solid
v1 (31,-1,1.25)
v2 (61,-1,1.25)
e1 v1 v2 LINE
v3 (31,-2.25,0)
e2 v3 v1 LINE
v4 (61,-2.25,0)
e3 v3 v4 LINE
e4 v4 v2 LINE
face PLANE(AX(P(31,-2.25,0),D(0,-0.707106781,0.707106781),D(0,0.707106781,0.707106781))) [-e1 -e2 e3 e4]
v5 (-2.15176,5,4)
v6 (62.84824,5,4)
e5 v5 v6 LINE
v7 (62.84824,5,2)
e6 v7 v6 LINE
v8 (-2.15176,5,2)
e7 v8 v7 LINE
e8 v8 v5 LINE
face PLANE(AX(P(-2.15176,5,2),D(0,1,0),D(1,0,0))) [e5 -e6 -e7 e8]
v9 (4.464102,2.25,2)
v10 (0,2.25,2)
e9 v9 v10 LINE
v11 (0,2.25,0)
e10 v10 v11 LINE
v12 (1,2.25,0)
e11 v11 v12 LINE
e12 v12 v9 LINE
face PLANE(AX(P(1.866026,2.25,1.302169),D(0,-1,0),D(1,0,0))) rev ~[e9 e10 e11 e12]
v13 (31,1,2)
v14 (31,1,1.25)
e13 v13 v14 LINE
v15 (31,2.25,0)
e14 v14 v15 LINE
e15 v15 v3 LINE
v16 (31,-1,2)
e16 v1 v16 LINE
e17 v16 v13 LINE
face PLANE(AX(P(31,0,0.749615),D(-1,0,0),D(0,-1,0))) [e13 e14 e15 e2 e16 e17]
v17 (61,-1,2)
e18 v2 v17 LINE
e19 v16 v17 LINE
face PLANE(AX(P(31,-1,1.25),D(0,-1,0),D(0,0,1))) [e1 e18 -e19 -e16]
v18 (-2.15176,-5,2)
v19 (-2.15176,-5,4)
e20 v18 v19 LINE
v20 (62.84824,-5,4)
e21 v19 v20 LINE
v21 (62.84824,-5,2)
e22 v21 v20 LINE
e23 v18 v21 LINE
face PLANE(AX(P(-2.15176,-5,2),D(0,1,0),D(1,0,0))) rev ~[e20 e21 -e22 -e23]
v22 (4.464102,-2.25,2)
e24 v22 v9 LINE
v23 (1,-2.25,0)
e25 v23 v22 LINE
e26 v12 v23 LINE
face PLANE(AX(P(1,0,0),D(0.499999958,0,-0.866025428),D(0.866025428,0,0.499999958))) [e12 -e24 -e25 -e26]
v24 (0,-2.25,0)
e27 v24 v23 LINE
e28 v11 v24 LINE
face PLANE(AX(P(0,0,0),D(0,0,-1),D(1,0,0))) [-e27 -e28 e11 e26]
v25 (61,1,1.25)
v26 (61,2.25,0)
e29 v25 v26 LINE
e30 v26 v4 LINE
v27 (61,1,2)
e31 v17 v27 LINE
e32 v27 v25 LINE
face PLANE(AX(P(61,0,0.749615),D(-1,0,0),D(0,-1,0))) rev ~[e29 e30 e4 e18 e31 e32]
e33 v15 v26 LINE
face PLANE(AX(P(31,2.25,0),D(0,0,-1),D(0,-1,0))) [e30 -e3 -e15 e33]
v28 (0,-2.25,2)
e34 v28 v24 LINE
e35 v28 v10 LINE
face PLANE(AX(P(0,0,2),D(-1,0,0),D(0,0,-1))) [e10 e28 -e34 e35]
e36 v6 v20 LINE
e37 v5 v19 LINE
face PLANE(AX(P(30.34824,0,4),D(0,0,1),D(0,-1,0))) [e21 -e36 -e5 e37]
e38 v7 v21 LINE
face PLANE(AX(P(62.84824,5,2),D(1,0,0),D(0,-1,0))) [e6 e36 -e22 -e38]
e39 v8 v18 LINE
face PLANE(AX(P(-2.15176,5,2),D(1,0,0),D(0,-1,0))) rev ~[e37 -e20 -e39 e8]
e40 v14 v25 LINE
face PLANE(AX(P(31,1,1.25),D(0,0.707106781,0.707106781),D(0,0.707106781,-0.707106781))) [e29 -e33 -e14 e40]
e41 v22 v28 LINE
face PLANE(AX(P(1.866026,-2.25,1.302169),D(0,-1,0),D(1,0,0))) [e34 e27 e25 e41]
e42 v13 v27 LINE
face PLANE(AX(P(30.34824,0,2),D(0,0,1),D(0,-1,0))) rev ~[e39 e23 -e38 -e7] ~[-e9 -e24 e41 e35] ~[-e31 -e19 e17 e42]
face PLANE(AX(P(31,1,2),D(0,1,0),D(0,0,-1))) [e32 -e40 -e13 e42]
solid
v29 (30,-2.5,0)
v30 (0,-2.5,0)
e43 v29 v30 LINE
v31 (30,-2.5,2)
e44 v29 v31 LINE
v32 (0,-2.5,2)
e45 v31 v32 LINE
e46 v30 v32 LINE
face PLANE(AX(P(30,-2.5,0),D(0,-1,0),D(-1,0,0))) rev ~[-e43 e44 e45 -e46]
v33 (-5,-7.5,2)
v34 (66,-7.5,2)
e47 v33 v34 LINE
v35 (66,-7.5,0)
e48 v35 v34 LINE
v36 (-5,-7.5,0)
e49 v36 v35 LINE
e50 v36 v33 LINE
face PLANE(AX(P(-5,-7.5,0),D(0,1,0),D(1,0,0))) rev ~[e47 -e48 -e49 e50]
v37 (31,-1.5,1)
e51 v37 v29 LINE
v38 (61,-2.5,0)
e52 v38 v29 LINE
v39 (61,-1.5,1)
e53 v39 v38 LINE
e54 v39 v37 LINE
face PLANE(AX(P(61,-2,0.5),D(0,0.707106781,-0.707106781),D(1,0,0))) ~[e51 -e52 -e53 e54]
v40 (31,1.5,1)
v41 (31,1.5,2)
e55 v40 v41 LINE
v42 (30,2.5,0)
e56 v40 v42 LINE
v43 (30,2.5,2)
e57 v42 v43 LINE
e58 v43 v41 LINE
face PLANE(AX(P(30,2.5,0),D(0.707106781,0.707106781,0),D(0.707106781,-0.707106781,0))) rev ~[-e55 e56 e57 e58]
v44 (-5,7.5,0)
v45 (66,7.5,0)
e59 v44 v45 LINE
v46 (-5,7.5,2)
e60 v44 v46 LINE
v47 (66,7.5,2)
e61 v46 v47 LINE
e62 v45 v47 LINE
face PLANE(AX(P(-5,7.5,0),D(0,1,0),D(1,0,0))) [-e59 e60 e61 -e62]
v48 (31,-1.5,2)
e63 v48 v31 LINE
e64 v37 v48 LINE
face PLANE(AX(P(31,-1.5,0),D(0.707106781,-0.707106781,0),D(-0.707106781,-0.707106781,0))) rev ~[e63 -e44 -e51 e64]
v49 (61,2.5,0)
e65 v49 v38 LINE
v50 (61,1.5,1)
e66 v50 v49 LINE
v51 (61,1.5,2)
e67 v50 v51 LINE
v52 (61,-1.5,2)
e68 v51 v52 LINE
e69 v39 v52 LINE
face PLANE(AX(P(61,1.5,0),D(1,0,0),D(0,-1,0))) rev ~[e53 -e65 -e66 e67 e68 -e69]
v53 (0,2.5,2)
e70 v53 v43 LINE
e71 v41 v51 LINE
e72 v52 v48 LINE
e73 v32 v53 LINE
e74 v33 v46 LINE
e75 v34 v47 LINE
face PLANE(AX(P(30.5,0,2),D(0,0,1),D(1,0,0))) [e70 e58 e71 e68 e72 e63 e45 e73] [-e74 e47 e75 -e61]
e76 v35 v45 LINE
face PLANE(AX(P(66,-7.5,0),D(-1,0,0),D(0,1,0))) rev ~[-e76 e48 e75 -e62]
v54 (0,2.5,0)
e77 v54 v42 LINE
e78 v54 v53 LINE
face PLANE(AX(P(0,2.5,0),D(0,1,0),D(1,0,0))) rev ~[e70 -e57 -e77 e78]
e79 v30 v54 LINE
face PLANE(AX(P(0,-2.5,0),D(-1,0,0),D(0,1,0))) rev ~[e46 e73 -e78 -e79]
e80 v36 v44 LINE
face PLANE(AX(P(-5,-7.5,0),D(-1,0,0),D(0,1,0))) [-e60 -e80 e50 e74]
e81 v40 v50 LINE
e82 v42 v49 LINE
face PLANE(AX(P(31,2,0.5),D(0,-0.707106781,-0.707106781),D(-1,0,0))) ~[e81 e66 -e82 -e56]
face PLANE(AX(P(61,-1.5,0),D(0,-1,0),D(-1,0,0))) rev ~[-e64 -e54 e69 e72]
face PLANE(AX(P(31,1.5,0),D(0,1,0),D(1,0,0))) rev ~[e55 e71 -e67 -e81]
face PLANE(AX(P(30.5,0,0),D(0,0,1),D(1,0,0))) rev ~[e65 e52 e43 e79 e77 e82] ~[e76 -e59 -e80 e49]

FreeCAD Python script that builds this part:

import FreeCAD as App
import Part
import Sketcher

V = App.Vector
Q = App.Units.Quantity


def edges_at(feature, points):
    """Names of the edges that pass closest to the given points."""
    edges = feature.Shape.Edges
    near = lambda p: min(range(len(edges)), key=lambda i: edges[i].distToShape(Part.Vertex(*p))[0])
    return sorted({f"Edge{near(p) + 1}" for p in points})

doc = App.newDocument("Part")
body = doc.addObject("PartDesign::Body", "Body")

# Sketch on XY plane
sketch1 = body.newObject("Sketcher::SketchObject", "Sketch")
sketch1.AttachmentSupport = (doc.getObject("XY_Plane"), [""])
sketch1.MapMode = "FlatFace"
sketch1.addGeometry([
    Part.LineSegment(V(-5, 7.5, 0), V(-5, -7.5, 0)),  # 0
    Part.LineSegment(V(-5, -7.5, 0), V(66, -7.5, 0)),  # 1
    Part.LineSegment(V(66, -7.5, 0), V(66, 7.5, 0)),  # 2
    Part.LineSegment(V(66, 7.5, 0), V(-5, 7.5, 0)),  # 3
    Part.LineSegment(V(0, -2.5, 0), V(0, 2.5, 0)),  # 4
    Part.LineSegment(V(0, 2.5, 0), V(30, 2.5, 0)),  # 5
    Part.LineSegment(V(30, 2.5, 0), V(31, 1.5, 0)),  # 6
    Part.LineSegment(V(31, 1.5, 0), V(61, 1.5, 0)),  # 7
    Part.LineSegment(V(61, 1.5, 0), V(61, -1.5, 0)),  # 8
    Part.LineSegment(V(61, -1.5, 0), V(31, -1.5, 0)),  # 9
    Part.LineSegment(V(31, -1.5, 0), V(30, -2.5, 0)),  # 10
    Part.LineSegment(V(30, -2.5, 0), V(0, -2.5, 0)),  # 11
], False)
sketch1.addConstraint([
    Sketcher.Constraint("Coincident", 0, 2, 1, 1),
    Sketcher.Constraint("Coincident", 1, 2, 2, 1),
    Sketcher.Constraint("Coincident", 2, 2, 3, 1),
    Sketcher.Constraint("Coincident", 3, 2, 0, 1),
    Sketcher.Constraint("Coincident", 4, 2, 5, 1),
    Sketcher.Constraint("Coincident", 5, 2, 6, 1),
    Sketcher.Constraint("Coincident", 6, 2, 7, 1),
    Sketcher.Constraint("Coincident", 7, 2, 8, 1),
    Sketcher.Constraint("Coincident", 8, 2, 9, 1),
    Sketcher.Constraint("Coincident", 9, 2, 10, 1),
    Sketcher.Constraint("Coincident", 10, 2, 11, 1),
    Sketcher.Constraint("Coincident", 11, 2, 4, 1),
    Sketcher.Constraint("Vertical", 0),
    Sketcher.Constraint("Horizontal", 1),
    Sketcher.Constraint("Vertical", 2),
    Sketcher.Constraint("Horizontal", 3),
    Sketcher.Constraint("Vertical", 4),
    Sketcher.Constraint("Horizontal", 5),
    Sketcher.Constraint("Horizontal", 7),
    Sketcher.Constraint("Vertical", 8),
    Sketcher.Constraint("Horizontal", 9),
    Sketcher.Constraint("Horizontal", 11),
    Sketcher.Constraint("Symmetric", 4, 2, 11, 2, -1, 1),
    Sketcher.Constraint("Symmetric", 6, 2, 9, 2, -1),
    Sketcher.Constraint("Perpendicular", 6, 10),
    Sketcher.Constraint("Vertical", 5, 2, 10, 2),
    Sketcher.Constraint("Equal", 5, 7),
    Sketcher.Constraint("DistanceX", 1, 1, 1, 2, Q("71 mm")),
    Sketcher.Constraint("DistanceX", 5, 1, 5, 2, Q("30 mm")),
    Sketcher.Constraint("DistanceY", 0, 2, 0, 1, Q("15 mm")),
    Sketcher.Constraint("DistanceY", 4, 1, 4, 2, Q("5 mm")),
    Sketcher.Constraint("DistanceY", 8, 2, 8, 1, Q("3 mm")),
    Sketcher.Constraint("DistanceX", 0, 2, -1, 1, Q("5 mm")),
    Sketcher.Constraint("DistanceY", 4, 2, 3, 2, Q("5 mm")),
])
pad1 = body.newObject("PartDesign::Pad", "Pad")
pad1.Profile = sketch1
pad1.Length = 2
doc.recompute()

chamfer = body.newObject("PartDesign::Chamfer", "Chamfer")
chamfer.Base = (pad1, edges_at(pad1, [(46, -1.5, 0), (46, 1.5, 0)]))
chamfer.Size = 1
body2 = doc.addObject("PartDesign::Body", "Body001")

# Sketch on YZ plane
sketch2 = body2.newObject("Sketcher::SketchObject", "Sketch001")
sketch2.AttachmentSupport = (doc.getObject("YZ_Plane001"), [""])
sketch2.MapMode = "FlatFace"
sketch2.AttachmentOffset = App.Placement(V(0, 0, 31), App.Rotation())
sketch2.addGeometry([
    Part.LineSegment(V(1, 2, 0), V(-1, 2, 0)),  # 0
    Part.LineSegment(V(-1, 2, 0), V(-1, 1.2, 0)),  # 1
    Part.LineSegment(V(-1, 1.2, 0), V(-2.2, 0, 0)),  # 2
    Part.LineSegment(V(-2.2, 0, 0), V(2.2, 0, 0)),  # 3
    Part.LineSegment(V(2.2, 0, 0), V(1, 1.2, 0)),  # 4
    Part.LineSegment(V(1, 1.2, 0), V(1, 2, 0)),  # 5
], False)
sketch2.addConstraint([
    Sketcher.Constraint("Coincident", 0, 2, 1, 1),
    Sketcher.Constraint("Coincident", 1, 2, 2, 1),
    Sketcher.Constraint("Coincident", 2, 2, 3, 1),
    Sketcher.Constraint("Coincident", 3, 2, 4, 1),
    Sketcher.Constraint("Coincident", 4, 2, 5, 1),
    Sketcher.Constraint("Coincident", 5, 2, 0, 1),
    Sketcher.Constraint("Horizontal", 0),
    Sketcher.Constraint("Vertical", 1),
    Sketcher.Constraint("Horizontal", 3),
    Sketcher.Constraint("Vertical", 5),
    Sketcher.Constraint("Symmetric", 2, 2, 3, 2, -1, 1),
    Sketcher.Constraint("Symmetric", 1, 2, 4, 2, -2),
    Sketcher.Constraint("Perpendicular", 2, 4),
    Sketcher.Constraint("DistanceX", 0, 2, 0, 1, Q("2 mm")),
    Sketcher.Constraint("DistanceX", 3, 1, 3, 2, Q("4.5 mm")),
    Sketcher.Constraint("DistanceY", -1, 1, 0, 2, Q("2 mm")),
])
pad2 = body2.newObject("PartDesign::Pad", "Pad001")
pad2.Profile = sketch2
pad2.Length = 30

# Sketch on XY plane
sketch3 = body2.newObject("Sketcher::SketchObject", "Sketch002")
sketch3.AttachmentSupport = (doc.getObject("XY_Plane001"), [""])
sketch3.MapMode = "FlatFace"
sketch3.AttachmentOffset = App.Placement(V(0, 0, 2), App.Rotation())
sketch3.addGeometry([
    Part.LineSegment(V(63, 5, 0), V(-2, 5, 0)),
    Part.LineSegment(V(-2, 5, 0), V(-2, -5, 0)),
    Part.LineSegment(V(-2, -5, 0), V(63, -5, 0)),
    Part.LineSegment(V(63, -5, 0), V(63, 5, 0)),
], False)
sketch3.addConstraint([
    Sketcher.Constraint("Coincident", 0, 2, 1, 1),
    Sketcher.Constraint("Coincident", 1, 2, 2, 1),
    Sketcher.Constraint("Coincident", 2, 2, 3, 1),
    Sketcher.Constraint("Coincident", 3, 2, 0, 1),
    Sketcher.Constraint("Horizontal", 0),
    Sketcher.Constraint("Vertical", 1),
    Sketcher.Constraint("Horizontal", 2),
    Sketcher.Constraint("Vertical", 3),
    Sketcher.Constraint("DistanceX", 0, 2, 0, 1, Q("65 mm")),
    Sketcher.Constraint("DistanceY", 1, 2, 1, 1, Q("10 mm")),
    Sketcher.Constraint("DistanceY", -1, 1, 0, 2, Q("5 mm")),
    Sketcher.Constraint("DistanceX", 0, 2, -1, 1, Q("2.15176 mm")),
])
pad3 = body2.newObject("PartDesign::Pad", "Pad002")
pad3.Profile = sketch3
pad3.Length = 2

# Sketch on XZ plane
sketch4 = body2.newObject("Sketcher::SketchObject", "Sketch003")
sketch4.AttachmentSupport = (doc.getObject("XZ_Plane001"), [""])
sketch4.MapMode = "FlatFace"
sketch4.addGeometry([
    Part.LineSegment(V(0, 2, 0), V(0, 0, 0)),
    Part.LineSegment(V(0, 0, 0), V(1, 0, 0)),
    Part.LineSegment(V(1, 0, 0), V(4.5, 2, 0)),
    Part.LineSegment(V(4.5, 2, 0), V(0, 2, 0)),
], False)
sketch4.addConstraint([
    Sketcher.Constraint("Coincident", 0, 2, 1, 1),
    Sketcher.Constraint("Coincident", 1, 2, 2, 1),
    Sketcher.Constraint("Coincident", 2, 2, 3, 1),
    Sketcher.Constraint("Coincident", 3, 2, 0, 1),
    Sketcher.Constraint("Vertical", 0),
    Sketcher.Constraint("Horizontal", 1),
    Sketcher.Constraint("Horizontal", 3),
    Sketcher.Constraint("Coincident", 0, 2, -1, 1),
    Sketcher.Constraint("DistanceX", 1, 1, 1, 2, Q("1 mm")),
    Sketcher.Constraint("DistanceY", 0, 2, 0, 1, Q("2 mm")),
    Sketcher.Constraint("Angle", 2, Q("29.999997 deg")),
])
pad4 = body2.newObject("PartDesign::Pad", "Pad003")
pad4.Profile = sketch4
pad4.Length = 4.5
pad4.Midplane = True

doc.recompute()
